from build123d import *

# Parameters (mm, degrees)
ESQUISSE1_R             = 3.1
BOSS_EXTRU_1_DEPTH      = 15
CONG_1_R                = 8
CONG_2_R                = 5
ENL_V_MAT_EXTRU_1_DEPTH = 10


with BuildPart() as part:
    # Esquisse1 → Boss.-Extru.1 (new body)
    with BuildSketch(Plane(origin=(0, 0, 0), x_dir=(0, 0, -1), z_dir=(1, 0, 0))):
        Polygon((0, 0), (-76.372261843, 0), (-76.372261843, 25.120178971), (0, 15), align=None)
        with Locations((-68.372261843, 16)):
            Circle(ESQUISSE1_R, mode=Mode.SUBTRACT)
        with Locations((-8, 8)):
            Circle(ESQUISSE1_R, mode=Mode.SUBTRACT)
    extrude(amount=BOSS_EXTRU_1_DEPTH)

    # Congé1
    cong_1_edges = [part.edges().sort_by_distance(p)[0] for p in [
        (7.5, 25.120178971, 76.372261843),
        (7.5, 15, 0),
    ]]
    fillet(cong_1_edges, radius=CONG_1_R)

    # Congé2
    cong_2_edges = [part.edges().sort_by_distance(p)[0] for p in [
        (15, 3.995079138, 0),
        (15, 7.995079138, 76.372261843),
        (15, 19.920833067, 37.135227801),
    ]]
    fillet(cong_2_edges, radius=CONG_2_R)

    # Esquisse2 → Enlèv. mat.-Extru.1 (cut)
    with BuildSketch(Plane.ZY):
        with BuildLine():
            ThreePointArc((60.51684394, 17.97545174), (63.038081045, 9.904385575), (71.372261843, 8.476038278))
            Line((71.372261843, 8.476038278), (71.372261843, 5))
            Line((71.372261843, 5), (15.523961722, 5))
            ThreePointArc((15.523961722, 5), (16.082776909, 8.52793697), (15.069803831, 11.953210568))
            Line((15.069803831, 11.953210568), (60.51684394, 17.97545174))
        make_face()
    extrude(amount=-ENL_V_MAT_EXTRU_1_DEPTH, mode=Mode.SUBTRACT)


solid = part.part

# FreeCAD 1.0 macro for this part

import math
import FreeCAD as App
import Part
import Sketcher

V = App.Vector
Q = App.Units.Quantity


def edges_at(feature, points):
    """Names of the edges that pass closest to the given points."""
    edges = feature.Shape.Edges
    near = lambda p: min(range(len(edges)), key=lambda i: edges[i].distToShape(Part.Vertex(*p))[0])
    return sorted({f"Edge{near(p) + 1}" for p in points})


def add_polygon(sketch, points):
    """Adds a closed chain of lines whose ends are joined by coincident constraints."""
    first, n = sketch.GeometryCount, len(points)
    for a, b in zip(points, points[1:] + points[:1]):
        sketch.addGeometry(Part.LineSegment(App.Vector(*a, 0), App.Vector(*b, 0)), False)
    for i in range(n):
        sketch.addConstraint(Sketcher.Constraint("Coincident", first + i, 2, first + (i + 1) % n, 1))

doc = App.newDocument("Part")
body = doc.addObject("PartDesign::Body", "Body")

# Sketch on YZ plane
sketch1 = doc.addObject("Sketcher::SketchObject", "Sketch")
body.addObject(sketch1)
sketch1.AttachmentSupport = (doc.YZ_Plane, [""])
sketch1.MapMode = "FlatFace"
add_polygon(sketch1, [(0, 76.4), (0, 0), (15, 0), (25.1, 76.4)])  # lines 0-3
sketch1.addGeometry(Part.Circle(V(8, 8, 0), V(0, 0, 1), 3.1), False)  # 4
sketch1.addGeometry(Part.Circle(V(16, 68.4, 0), V(0, 0, 1), 3.1), False)  # 5
sketch1.addConstraint(Sketcher.Constraint("Vertical", 0))
sketch1.addConstraint(Sketcher.Constraint("Horizontal", 1))
sketch1.addConstraint(Sketcher.Constraint("Horizontal", 3))
sketch1.addConstraint(Sketcher.Constraint("Coincident", 0, 2, -1, 1))
sketch1.addConstraint(Sketcher.Constraint("Equal", 4, 5))
sketch1.addConstraint(Sketcher.Constraint("Diameter", 4, Q("6.2 mm")))
sketch1.addConstraint(Sketcher.Constraint("DistanceX", 1, 1, 1, 2, Q("15 mm")))
sketch1.addConstraint(Sketcher.Constraint("DistanceX", -1, 1, 4, 3, Q("8 mm")))
sketch1.addConstraint(Sketcher.Constraint("DistanceY", -1, 1, 4, 3, Q("8 mm")))
sketch1.addConstraint(Sketcher.Constraint("DistanceX", -1, 1, 5, 3, Q("16 mm")))
sketch1.addConstraint(Sketcher.Constraint("DistanceY", 5, 3, 2, 2, Q("8 mm")))
sketch1.addConstraint(Sketcher.Constraint("DistanceX", 3, 2, 3, 1, Q("25.120179 mm")))
sketch1.addConstraint(Sketcher.Constraint("DistanceY", 0, 2, 0, 1, Q("76.372262 mm")))
pad1 = doc.addObject("PartDesign::Pad", "Pad")
body.addObject(pad1)
pad1.Profile = sketch1
pad1.Length = 15
doc.recompute()

fillet = doc.addObject("PartDesign::Fillet", "Fillet")
body.addObject(fillet)
fillet.Base = (pad1, edges_at(pad1, [(7.5, 25.12, 76.372), (7.5, 15, 0)]))
fillet.Radius = 8
doc.recompute()

fillet2 = doc.addObject("PartDesign::Fillet", "Fillet001")
body.addObject(fillet2)
fillet2.Base = (fillet, edges_at(fillet, [(15, 3.995, 0), (15, 7.995, 76.372), (15, 19.921, 37.135)]))
fillet2.Radius = 5

# Sketch on YZ plane
sketch2 = doc.addObject("Sketcher::SketchObject", "Sketch001")
body.addObject(sketch2)
sketch2.AttachmentSupport = (doc.YZ_Plane, [""])
sketch2.MapMode = "FlatFace"
sketch2.addGeometry(Part.ArcOfCircle(Part.Circle(V(16, 68.4, 0), V(0, 0, 1), 8.1), math.radians(158), math.radians(284)), False)
sketch2.addGeometry(Part.LineSegment(V(18, 60.5, 0), V(12, 15.1, 0)), False)
sketch2.addGeometry(Part.ArcOfCircle(Part.Circle(V(8, 8, 0), V(0, 0, 1), 8.1), math.radians(61), math.radians(112)), False)
sketch2.addGeometry(Part.LineSegment(V(5, 15.5, 0), V(5, 71.4, 0)), False)
sketch2.addGeometry(Part.LineSegment(V(5, 71.4, 0), V(8.5, 71.4, 0)), False)
sketch2.addConstraint(Sketcher.Constraint("Coincident", 0, 2, 1, 1))
sketch2.addConstraint(Sketcher.Constraint("Coincident", 1, 2, 2, 1))
sketch2.addConstraint(Sketcher.Constraint("Coincident", 2, 2, 3, 1))
sketch2.addConstraint(Sketcher.Constraint("Coincident", 3, 2, 4, 1))
sketch2.addConstraint(Sketcher.Constraint("Coincident", 4, 2, 0, 1))
sketch2.addConstraint(Sketcher.Constraint("Vertical", 3))
sketch2.addConstraint(Sketcher.Constraint("Horizontal", 4))
sketch2.addConstraint(Sketcher.Constraint("Equal", 0, 2))
sketch2.addConstraint(Sketcher.Constraint("Radius", 0, Q("8.1 mm")))
sketch2.addConstraint(Sketcher.Constraint("DistanceX", -1, 1, 0, 3, Q("16 mm")))
sketch2.addConstraint(Sketcher.Constraint("DistanceX", -1, 1, 2, 3, Q("8 mm")))
sketch2.addConstraint(Sketcher.Constraint("DistanceY", -1, 1, 2, 3, Q("8 mm")))
sketch2.addConstraint(Sketcher.Constraint("DistanceX", -1, 1, 2, 2, Q("5 mm")))
sketch2.addConstraint(Sketcher.Constraint("DistanceY", 0, 3, 3, 2, Q("3 mm")))
sketch2.addConstraint(Sketcher.Constraint("DistanceY", 3, 1, 3, 2, Q("55.8483 mm")))
sketch2.addConstraint(Sketcher.Constraint("Distance", 1, Q("45.844311 mm")))
sketch2.addConstraint(Sketcher.Constraint("DistanceX", -1, 1, 0, 2, Q("17.975452 mm")))
pocket1 = doc.addObject("PartDesign::Pocket", "Pocket")
body.addObject(pocket1)
pocket1.Profile = sketch2
pocket1.Length = 10
pocket1.Reversed = True

doc.recompute()
